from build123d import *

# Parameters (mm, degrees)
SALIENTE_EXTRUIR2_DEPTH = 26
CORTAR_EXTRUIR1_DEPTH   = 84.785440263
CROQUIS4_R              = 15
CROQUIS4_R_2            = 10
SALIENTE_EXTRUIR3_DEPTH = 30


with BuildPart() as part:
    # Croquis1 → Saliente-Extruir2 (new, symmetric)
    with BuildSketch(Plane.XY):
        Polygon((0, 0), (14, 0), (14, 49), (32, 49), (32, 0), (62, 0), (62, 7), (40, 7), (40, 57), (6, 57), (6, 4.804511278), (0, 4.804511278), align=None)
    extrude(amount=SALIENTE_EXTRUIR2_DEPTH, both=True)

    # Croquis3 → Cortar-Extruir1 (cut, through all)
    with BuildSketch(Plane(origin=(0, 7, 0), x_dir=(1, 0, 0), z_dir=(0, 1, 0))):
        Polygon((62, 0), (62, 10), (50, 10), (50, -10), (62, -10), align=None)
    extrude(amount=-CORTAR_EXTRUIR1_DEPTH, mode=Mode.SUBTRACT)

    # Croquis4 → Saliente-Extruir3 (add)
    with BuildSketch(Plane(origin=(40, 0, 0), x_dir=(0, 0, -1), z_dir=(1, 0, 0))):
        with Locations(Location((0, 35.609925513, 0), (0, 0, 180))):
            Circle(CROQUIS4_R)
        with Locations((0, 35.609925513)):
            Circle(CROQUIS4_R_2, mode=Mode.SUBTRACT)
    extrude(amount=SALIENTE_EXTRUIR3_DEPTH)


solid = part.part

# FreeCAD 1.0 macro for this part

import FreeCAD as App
import Part
import Sketcher
Q = App.Units.Quantity

doc = App.newDocument("Part")
body = doc.addObject("PartDesign::Body", "Body")

# Sketch on XY plane
sketch1 = doc.addObject("Sketcher::SketchObject", "Sketch")
body.addObject(sketch1)
sketch1.AttachmentSupport = (doc.XY_Plane, [""])
sketch1.MapMode = "FlatFace"
sketch1.addGeometry([
    Part.LineSegment(App.Vector(0, 0, 0), App.Vector(14, 0, 0)),  # 0
    Part.LineSegment(App.Vector(14, 0, 0), App.Vector(14, 49, 0)),  # 1
    Part.LineSegment(App.Vector(14, 49, 0), App.Vector(32, 49, 0)),  # 2
    Part.LineSegment(App.Vector(32, 49, 0), App.Vector(32, 0, 0)),  # 3
    Part.LineSegment(App.Vector(32, 0, 0), App.Vector(62, 0, 0)),  # 4
    Part.LineSegment(App.Vector(62, 0, 0), App.Vector(62, 7, 0)),  # 5
    Part.LineSegment(App.Vector(62, 7, 0), App.Vector(40, 7, 0)),  # 6
    Part.LineSegment(App.Vector(40, 7, 0), App.Vector(40, 57, 0)),  # 7
    Part.LineSegment(App.Vector(40, 57, 0), App.Vector(6, 57, 0)),  # 8
    Part.LineSegment(App.Vector(6, 57, 0), App.Vector(6, 4.8, 0)),  # 9
    Part.LineSegment(App.Vector(6, 4.8, 0), App.Vector(0, 4.8, 0)),  # 10
    Part.LineSegment(App.Vector(0, 4.8, 0), App.Vector(0, 0, 0)),  # 11
], False)
sketch1.addConstraint([
    Sketcher.Constraint("Coincident", 0, 2, 1, 1),
    Sketcher.Constraint("Coincident", 1, 2, 2, 1),
    Sketcher.Constraint("Coincident", 2, 2, 3, 1),
    Sketcher.Constraint("Coincident", 3, 2, 4, 1),
    Sketcher.Constraint("Coincident", 4, 2, 5, 1),
    Sketcher.Constraint("Coincident", 5, 2, 6, 1),
    Sketcher.Constraint("Coincident", 6, 2, 7, 1),
    Sketcher.Constraint("Coincident", 7, 2, 8, 1),
    Sketcher.Constraint("Coincident", 8, 2, 9, 1),
    Sketcher.Constraint("Coincident", 9, 2, 10, 1),
    Sketcher.Constraint("Coincident", 10, 2, 11, 1),
    Sketcher.Constraint("Coincident", 11, 2, 0, 1),
    Sketcher.Constraint("Horizontal", 0),
    Sketcher.Constraint("Vertical", 1),
    Sketcher.Constraint("Horizontal", 2),
    Sketcher.Constraint("Vertical", 3),
    Sketcher.Constraint("Horizontal", 4),
    Sketcher.Constraint("Vertical", 5),
    Sketcher.Constraint("Horizontal", 6),
    Sketcher.Constraint("Vertical", 7),
    Sketcher.Constraint("Horizontal", 8),
    Sketcher.Constraint("Vertical", 9),
    Sketcher.Constraint("Horizontal", 10),
    Sketcher.Constraint("Vertical", 11),
    Sketcher.Constraint("Coincident", 11, 2, -1, 1),
    Sketcher.Constraint("PointOnObject", 3, 2, -1),
    Sketcher.Constraint("DistanceX", 0, 1, 0, 2, Q("14 mm")),
    Sketcher.Constraint("DistanceX", 2, 1, 2, 2, Q("18 mm")),
    Sketcher.Constraint("DistanceX", 4, 1, 4, 2, Q("30 mm")),
    Sketcher.Constraint("DistanceX", 6, 2, 6, 1, Q("22 mm")),
    Sketcher.Constraint("DistanceX", 8, 2, 8, 1, Q("34 mm")),
    Sketcher.Constraint("DistanceY", 1, 1, 1, 2, Q("49 mm")),
    Sketcher.Constraint("DistanceY", 5, 1, 5, 2, Q("7 mm")),
    Sketcher.Constraint("DistanceY", 7, 1, 7, 2, Q("50 mm")),
    Sketcher.Constraint("DistanceY", 9, 2, 9, 1, Q("52.195489 mm")),
])
pad1 = doc.addObject("PartDesign::Pad", "Pad")
body.addObject(pad1)
pad1.Profile = sketch1
pad1.Length = 52
pad1.Midplane = True

# Sketch on XZ plane
sketch2 = doc.addObject("Sketcher::SketchObject", "Sketch001")
body.addObject(sketch2)
sketch2.AttachmentSupport = (doc.XZ_Plane, [""])
sketch2.MapMode = "FlatFace"
sketch2.AttachmentOffset = App.Placement(App.Vector(0, 0, -7), App.Rotation())
sketch2.addGeometry([
    Part.LineSegment(App.Vector(62, -10, 0), App.Vector(50, -10, 0)),
    Part.LineSegment(App.Vector(50, -10, 0), App.Vector(50, 10, 0)),
    Part.LineSegment(App.Vector(50, 10, 0), App.Vector(62, 10, 0)),
    Part.LineSegment(App.Vector(62, 10, 0), App.Vector(62, -10, 0)),
], False)
sketch2.addConstraint([
    Sketcher.Constraint("Coincident", 0, 2, 1, 1),
    Sketcher.Constraint("Coincident", 1, 2, 2, 1),
    Sketcher.Constraint("Coincident", 2, 2, 3, 1),
    Sketcher.Constraint("Coincident", 3, 2, 0, 1),
    Sketcher.Constraint("Horizontal", 0),
    Sketcher.Constraint("Vertical", 1),
    Sketcher.Constraint("Horizontal", 2),
    Sketcher.Constraint("Vertical", 3),
    Sketcher.Constraint("DistanceX", 0, 2, 0, 1, Q("12 mm")),
    Sketcher.Constraint("DistanceY", 1, 1, 1, 2, Q("20 mm")),
    Sketcher.Constraint("DistanceX", -1, 1, 0, 2, Q("50 mm")),
    Sketcher.Constraint("DistanceY", 0, 2, -1, 1, Q("10 mm")),
])
pocket1 = doc.addObject("PartDesign::Pocket", "Pocket")
body.addObject(pocket1)
pocket1.Profile = sketch2
pocket1.Type = "ThroughAll"
pocket1.Reversed = True

# Sketch on YZ plane
sketch3 = doc.addObject("Sketcher::SketchObject", "Sketch002")
body.addObject(sketch3)
sketch3.AttachmentSupport = (doc.YZ_Plane, [""])
sketch3.MapMode = "FlatFace"
sketch3.AttachmentOffset = App.Placement(App.Vector(0, 0, 40), App.Rotation())
sketch3.addGeometry([
    Part.Circle(App.Vector(36, 0, 0), App.Vector(0, 0, 1), 15),
    Part.Circle(App.Vector(36, 0, 0), App.Vector(0, 0, 1), 10),
], False)
sketch3.addConstraint([
    Sketcher.Constraint("Coincident", 1, 3, 0, 3),
    Sketcher.Constraint("PointOnObject", 0, 3, -1),
    Sketcher.Constraint("Diameter", 0, Q("30 mm")),
    Sketcher.Constraint("Diameter", 1, Q("20 mm")),
    Sketcher.Constraint("DistanceX", -1, 1, 0, 3, Q("35.609926 mm")),
])
pad2 = doc.addObject("PartDesign::Pad", "Pad001")
body.addObject(pad2)
pad2.Profile = sketch3
pad2.Length = 30

doc.recompute()
